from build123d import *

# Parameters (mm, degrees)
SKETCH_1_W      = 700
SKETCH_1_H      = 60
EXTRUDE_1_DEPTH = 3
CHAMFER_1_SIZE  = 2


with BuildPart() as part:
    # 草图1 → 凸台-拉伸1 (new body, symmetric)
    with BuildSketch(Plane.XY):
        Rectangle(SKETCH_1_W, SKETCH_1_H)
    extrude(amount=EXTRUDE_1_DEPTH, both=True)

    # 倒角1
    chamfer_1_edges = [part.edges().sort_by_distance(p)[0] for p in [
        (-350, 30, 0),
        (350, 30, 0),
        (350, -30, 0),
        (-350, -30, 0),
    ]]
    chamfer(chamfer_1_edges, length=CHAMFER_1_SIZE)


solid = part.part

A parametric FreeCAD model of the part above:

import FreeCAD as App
import Part
import Sketcher


def edges_at(feature, points):
    """Names of the edges that pass closest to the given points."""
    edges = feature.Shape.Edges
    near = lambda p: min(range(len(edges)), key=lambda i: edges[i].distToShape(Part.Vertex(*p))[0])
    return sorted({f"Edge{near(p) + 1}" for p in points})


def add_polygon(sketch, points):
    """Adds a closed chain of lines whose ends are joined by coincident constraints."""
    first, n = sketch.GeometryCount, len(points)
    for a, b in zip(points, points[1:] + points[:1]):
        sketch.addGeometry(Part.LineSegment(App.Vector(*a, 0), App.Vector(*b, 0)), False)
    for i in range(n):
        sketch.addConstraint(Sketcher.Constraint("Coincident", first + i, 2, first + (i + 1) % n, 1))

doc = App.newDocument("Part")
params = doc.addObject("Spreadsheet::Sheet", "Params")
for row, (alias, value) in enumerate([
    ("sketch1_width", "700 mm"),
    ("sketch1_height", "60 mm"),
    ("pad1_length", "6 mm"),
    ("chamfer_size", "2 mm"),
], start=1):
    params.set(f"A{row}", alias)
    params.set(f"B{row}", "=" + value)
    params.setAlias(f"B{row}", alias)

body = doc.addObject("PartDesign::Body", "Body")

# Sketch on XY plane
sketch1 = body.newObject("Sketcher::SketchObject", "Sketch")
sketch1.AttachmentSupport = (doc.getObject("XY_Plane"), [""])
sketch1.MapMode = "FlatFace"
add_polygon(sketch1, [(-350, 30), (-350, -30), (350, -30), (350, 30)])  # lines 0-3
sketch1.addConstraint([
    Sketcher.Constraint("Vertical", 0),
    Sketcher.Constraint("Horizontal", 1),
    Sketcher.Constraint("Vertical", 2),
    Sketcher.Constraint("Horizontal", 3),
    Sketcher.Constraint("Symmetric", 0, 2, 2, 2, -1, 1),
    Sketcher.Constraint("DistanceX", 1, 1, 1, 2, 700.0),
    Sketcher.Constraint("DistanceY", 0, 2, 0, 1, 60.0),
])
sketch1.setExpression("Constraints[9]", "Params.sketch1_width")
sketch1.setExpression("Constraints[10]", "Params.sketch1_height")
pad1 = body.newObject("PartDesign::Pad", "Pad")
pad1.Profile = sketch1
pad1.setExpression("Length", "Params.pad1_length")
pad1.Midplane = True
doc.recompute()

chamfer = body.newObject("PartDesign::Chamfer", "Chamfer")
chamfer.Base = (pad1, edges_at(pad1, [
    (-350, 30, 0),
    (350, 30, 0),
    (350, -30, 0),
    (-350, -30, 0),
]))
chamfer.setExpression("Size", "Params.chamfer_size")

doc.recompute()
